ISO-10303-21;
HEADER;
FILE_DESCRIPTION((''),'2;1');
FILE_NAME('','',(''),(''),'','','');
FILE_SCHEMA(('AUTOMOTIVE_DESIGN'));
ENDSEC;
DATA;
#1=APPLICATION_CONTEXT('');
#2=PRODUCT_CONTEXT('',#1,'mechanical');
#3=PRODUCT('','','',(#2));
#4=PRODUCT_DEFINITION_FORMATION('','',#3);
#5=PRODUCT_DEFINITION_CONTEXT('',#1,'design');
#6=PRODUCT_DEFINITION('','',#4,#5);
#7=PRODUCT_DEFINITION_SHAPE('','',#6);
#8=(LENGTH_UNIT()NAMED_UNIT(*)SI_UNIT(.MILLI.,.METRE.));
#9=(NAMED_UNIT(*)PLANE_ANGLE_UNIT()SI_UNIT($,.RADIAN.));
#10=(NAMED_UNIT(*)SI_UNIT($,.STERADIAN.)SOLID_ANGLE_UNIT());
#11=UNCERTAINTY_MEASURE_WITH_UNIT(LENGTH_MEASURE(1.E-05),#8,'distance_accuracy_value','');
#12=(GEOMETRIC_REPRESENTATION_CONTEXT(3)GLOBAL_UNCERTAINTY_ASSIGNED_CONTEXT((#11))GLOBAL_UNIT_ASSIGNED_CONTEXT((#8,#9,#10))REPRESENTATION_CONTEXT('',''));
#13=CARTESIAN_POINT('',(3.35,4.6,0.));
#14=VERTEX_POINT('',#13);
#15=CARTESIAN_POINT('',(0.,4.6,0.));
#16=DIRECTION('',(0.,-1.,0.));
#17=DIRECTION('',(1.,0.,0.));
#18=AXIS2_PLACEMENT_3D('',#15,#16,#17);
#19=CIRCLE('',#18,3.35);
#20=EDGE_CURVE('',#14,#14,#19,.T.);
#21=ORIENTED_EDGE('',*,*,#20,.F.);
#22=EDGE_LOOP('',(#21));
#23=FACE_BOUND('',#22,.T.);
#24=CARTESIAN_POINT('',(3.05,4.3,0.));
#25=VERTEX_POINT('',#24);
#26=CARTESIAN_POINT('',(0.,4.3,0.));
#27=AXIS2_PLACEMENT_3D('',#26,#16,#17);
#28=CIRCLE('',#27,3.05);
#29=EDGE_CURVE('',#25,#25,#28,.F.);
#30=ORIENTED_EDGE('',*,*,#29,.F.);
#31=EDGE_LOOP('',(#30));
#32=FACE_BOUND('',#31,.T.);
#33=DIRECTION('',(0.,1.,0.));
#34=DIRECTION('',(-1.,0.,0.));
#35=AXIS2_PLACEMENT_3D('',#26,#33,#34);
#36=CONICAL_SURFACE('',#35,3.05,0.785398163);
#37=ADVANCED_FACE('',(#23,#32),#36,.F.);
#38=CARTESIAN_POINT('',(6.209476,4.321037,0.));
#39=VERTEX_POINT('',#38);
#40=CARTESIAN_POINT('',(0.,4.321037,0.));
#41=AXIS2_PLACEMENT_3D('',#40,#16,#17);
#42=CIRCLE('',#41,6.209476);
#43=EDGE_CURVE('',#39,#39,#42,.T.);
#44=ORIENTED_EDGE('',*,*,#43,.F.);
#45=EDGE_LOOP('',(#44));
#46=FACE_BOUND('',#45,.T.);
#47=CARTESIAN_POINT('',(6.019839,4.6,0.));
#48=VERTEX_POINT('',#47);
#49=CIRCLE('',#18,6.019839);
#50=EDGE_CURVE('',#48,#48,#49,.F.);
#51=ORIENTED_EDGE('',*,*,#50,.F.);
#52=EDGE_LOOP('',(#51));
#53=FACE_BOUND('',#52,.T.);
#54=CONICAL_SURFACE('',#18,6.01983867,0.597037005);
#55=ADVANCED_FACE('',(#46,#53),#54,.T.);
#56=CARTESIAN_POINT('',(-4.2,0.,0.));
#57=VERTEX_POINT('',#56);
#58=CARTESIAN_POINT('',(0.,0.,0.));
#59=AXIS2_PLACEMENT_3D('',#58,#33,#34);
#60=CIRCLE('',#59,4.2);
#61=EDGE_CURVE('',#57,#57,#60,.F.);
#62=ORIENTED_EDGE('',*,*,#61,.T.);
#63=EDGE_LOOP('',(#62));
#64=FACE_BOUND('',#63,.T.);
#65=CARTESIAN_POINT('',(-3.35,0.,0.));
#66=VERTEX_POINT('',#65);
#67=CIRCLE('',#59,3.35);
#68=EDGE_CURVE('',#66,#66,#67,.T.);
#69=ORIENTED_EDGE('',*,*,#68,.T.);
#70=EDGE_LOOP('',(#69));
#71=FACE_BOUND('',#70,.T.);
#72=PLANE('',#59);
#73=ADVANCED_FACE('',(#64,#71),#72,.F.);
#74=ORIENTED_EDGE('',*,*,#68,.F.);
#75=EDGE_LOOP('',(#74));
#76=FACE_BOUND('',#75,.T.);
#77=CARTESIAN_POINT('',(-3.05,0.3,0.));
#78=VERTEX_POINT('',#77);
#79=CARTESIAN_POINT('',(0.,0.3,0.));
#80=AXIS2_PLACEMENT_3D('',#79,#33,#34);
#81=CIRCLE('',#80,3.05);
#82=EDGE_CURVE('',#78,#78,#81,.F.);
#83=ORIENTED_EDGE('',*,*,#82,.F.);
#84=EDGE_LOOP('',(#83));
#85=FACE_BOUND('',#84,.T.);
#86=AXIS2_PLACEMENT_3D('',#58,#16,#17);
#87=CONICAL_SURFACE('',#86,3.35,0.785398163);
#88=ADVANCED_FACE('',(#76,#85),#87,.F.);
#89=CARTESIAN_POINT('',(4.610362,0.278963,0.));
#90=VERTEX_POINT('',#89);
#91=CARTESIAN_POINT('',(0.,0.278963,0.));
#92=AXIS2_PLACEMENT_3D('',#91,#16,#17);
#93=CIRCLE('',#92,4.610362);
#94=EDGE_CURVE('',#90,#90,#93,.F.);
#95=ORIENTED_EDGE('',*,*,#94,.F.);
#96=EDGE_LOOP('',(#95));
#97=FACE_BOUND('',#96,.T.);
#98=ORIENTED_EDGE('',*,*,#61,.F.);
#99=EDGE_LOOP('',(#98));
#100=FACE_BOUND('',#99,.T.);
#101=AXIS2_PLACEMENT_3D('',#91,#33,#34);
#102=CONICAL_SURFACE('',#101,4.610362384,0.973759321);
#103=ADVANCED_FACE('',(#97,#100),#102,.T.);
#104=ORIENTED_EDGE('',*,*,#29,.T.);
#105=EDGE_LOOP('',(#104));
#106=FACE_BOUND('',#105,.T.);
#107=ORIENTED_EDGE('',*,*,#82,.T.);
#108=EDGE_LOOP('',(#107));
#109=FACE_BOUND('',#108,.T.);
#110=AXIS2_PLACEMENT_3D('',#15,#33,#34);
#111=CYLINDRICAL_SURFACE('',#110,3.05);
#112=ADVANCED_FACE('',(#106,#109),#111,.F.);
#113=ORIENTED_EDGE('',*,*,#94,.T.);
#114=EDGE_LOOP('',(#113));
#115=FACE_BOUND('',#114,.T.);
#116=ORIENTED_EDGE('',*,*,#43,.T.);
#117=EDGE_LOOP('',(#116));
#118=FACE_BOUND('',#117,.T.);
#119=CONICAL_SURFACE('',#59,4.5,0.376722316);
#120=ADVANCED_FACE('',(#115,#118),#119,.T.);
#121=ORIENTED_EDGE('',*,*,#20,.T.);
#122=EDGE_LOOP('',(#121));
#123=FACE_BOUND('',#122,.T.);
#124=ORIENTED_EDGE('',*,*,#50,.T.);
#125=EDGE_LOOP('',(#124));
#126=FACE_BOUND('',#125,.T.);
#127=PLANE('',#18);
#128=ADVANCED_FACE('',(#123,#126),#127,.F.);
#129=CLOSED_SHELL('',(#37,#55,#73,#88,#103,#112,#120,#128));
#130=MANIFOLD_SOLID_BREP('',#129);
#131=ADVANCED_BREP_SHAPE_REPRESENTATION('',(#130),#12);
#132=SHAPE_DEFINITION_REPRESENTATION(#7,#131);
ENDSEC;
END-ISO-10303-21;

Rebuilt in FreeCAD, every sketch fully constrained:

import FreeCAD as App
import Part
import Sketcher

V = App.Vector
Q = App.Units.Quantity


def edges_at(feature, points):
    """Names of the edges that pass closest to the given points."""
    edges = feature.Shape.Edges
    near = lambda p: min(range(len(edges)), key=lambda i: edges[i].distToShape(Part.Vertex(*p))[0])
    return sorted({f"Edge{near(p) + 1}" for p in points})

doc = App.newDocument("Part")
body = doc.addObject("PartDesign::Body", "Body")

sketch1 = doc.addObject("Sketcher::SketchObject", "Sketch")
body.addObject(sketch1)
sketch1.AttachmentSupport = (doc.XY_Plane, [""])
sketch1.MapMode = "FlatFace"
sketch1.addGeometry(Part.LineSegment(V(3, 4.6, 0), V(3, 0, 0)), False)
sketch1.addGeometry(Part.LineSegment(V(3, 0, 0), V(4.5, 0, 0)), False)
sketch1.addGeometry(Part.LineSegment(V(4.5, 0, 0), V(6.3, 4.6, 0)), False)
sketch1.addGeometry(Part.LineSegment(V(6.3, 4.6, 0), V(3, 4.6, 0)), False)
sketch1.addConstraint(Sketcher.Constraint("Coincident", 0, 2, 1, 1))
sketch1.addConstraint(Sketcher.Constraint("Coincident", 1, 2, 2, 1))
sketch1.addConstraint(Sketcher.Constraint("Coincident", 2, 2, 3, 1))
sketch1.addConstraint(Sketcher.Constraint("Coincident", 3, 2, 0, 1))
sketch1.addConstraint(Sketcher.Constraint("Vertical", 0))
sketch1.addConstraint(Sketcher.Constraint("Horizontal", 1))
sketch1.addConstraint(Sketcher.Constraint("Horizontal", 3))
sketch1.addConstraint(Sketcher.Constraint("PointOnObject", 0, 2, -1))
sketch1.addConstraint(Sketcher.Constraint("DistanceY", 0, 2, 0, 1, Q("4.6 mm")))
sketch1.addConstraint(Sketcher.Constraint("DistanceX", 1, 1, 1, 2, Q("1.45 mm")))
sketch1.addConstraint(Sketcher.Constraint("DistanceX", -1, 1, 1, 2, Q("4.5 mm")))
sketch1.addConstraint(Sketcher.Constraint("Distance", 2, Q("4.946899 mm")))
revolution = doc.addObject("PartDesign::Revolution", "Revolution")
body.addObject(revolution)
revolution.Profile = sketch1
revolution.ReferenceAxis = (sketch1, ["V_Axis"])
revolution.Angle = 360
doc.recompute()

chamfer = doc.addObject("PartDesign::Chamfer", "Chamfer")
body.addObject(chamfer)
chamfer.Base = (revolution, edges_at(revolution, [
    (-6.32, 4.6, 0),
    (-4.5, 0, 0),
    (-3.05, 0, 0),
    (-3.05, 4.6, 0),
]))
chamfer.Size = 0.3

doc.recompute()
